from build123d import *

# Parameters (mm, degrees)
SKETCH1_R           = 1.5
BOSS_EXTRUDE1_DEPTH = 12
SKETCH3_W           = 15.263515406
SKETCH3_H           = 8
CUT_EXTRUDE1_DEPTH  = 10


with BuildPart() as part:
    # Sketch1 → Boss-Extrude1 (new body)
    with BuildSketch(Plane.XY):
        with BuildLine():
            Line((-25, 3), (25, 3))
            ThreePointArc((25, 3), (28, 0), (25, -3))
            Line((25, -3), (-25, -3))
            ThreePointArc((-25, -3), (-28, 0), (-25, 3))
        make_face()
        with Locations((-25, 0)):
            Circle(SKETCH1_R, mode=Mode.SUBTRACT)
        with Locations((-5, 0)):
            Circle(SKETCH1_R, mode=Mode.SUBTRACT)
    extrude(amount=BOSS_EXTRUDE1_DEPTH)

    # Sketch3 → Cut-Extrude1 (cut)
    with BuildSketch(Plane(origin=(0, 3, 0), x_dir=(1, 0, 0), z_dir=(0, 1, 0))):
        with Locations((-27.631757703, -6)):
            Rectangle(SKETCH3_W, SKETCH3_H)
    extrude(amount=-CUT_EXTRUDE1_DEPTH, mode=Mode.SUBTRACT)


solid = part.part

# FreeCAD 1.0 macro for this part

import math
import FreeCAD as App
import Part
import Sketcher

doc = App.newDocument("Part")
body = doc.addObject("PartDesign::Body", "Body")

sketch1 = body.newObject("Sketcher::SketchObject", "Sketch")
sketch1.AttachmentSupport = (doc.getObject("XY_Plane"), [""])
sketch1.MapMode = "FlatFace"
sketch1.addGeometry([
    Part.LineSegment(App.Vector(25, 3, 0), App.Vector(-25, 3, 0)),
    Part.ArcOfCircle(Part.Circle(App.Vector(-25, 0, 0), App.Vector(0, 0, 1), 3), math.radians(90), math.radians(270)),
    Part.LineSegment(App.Vector(-25, -3, 0), App.Vector(25, -3, 0)),
    Part.ArcOfCircle(Part.Circle(App.Vector(25, 0, 0), App.Vector(0, 0, 1), 3), math.radians(-90), math.radians(90)),
    Part.Circle(App.Vector(-5, 0, 0), App.Vector(0, 0, 1), 1.5),
    Part.Circle(App.Vector(-25, 0, 0), App.Vector(0, 0, 1), 1.5),
], False)
sketch1.addConstraint([
    Sketcher.Constraint("Tangent", 0, 2, 1, 1),
    Sketcher.Constraint("Tangent", 1, 2, 2, 1),
    Sketcher.Constraint("Tangent", 2, 2, 3, 1),
    Sketcher.Constraint("Tangent", 3, 2, 0, 1),
    Sketcher.Constraint("Horizontal", 0),
    Sketcher.Constraint("Horizontal", 2),
    Sketcher.Constraint("Coincident", 5, 3, 1, 3),
    Sketcher.Constraint("Equal", 4, 5),
    Sketcher.Constraint("Symmetric", 1, 3, 3, 3, -1, 1),
    Sketcher.Constraint("PointOnObject", 4, 3, -1),
    Sketcher.Constraint("Diameter", 4, 3.0),
    Sketcher.Constraint("Radius", 1, 3.0),
    Sketcher.Constraint("DistanceX", 0, 2, 0, 1, 50.0),
    Sketcher.Constraint("DistanceX", 4, 3, -1, 1, 5.0),
])
pad1 = body.newObject("PartDesign::Pad", "Pad")
pad1.Profile = sketch1
pad1.Length = 12

sketch2 = body.newObject("Sketcher::SketchObject", "Sketch001")
sketch2.AttachmentSupport = (doc.getObject("XZ_Plane"), [""])
sketch2.MapMode = "FlatFace"
sketch2.AttachmentOffset = App.Placement(App.Vector(0, 0, -3), App.Rotation())
sketch2.addGeometry([
    Part.LineSegment(App.Vector(-35.263515, 2, 0), App.Vector(-35.263515, 10, 0)),
    Part.LineSegment(App.Vector(-35.263515, 10, 0), App.Vector(-20, 10, 0)),
    Part.LineSegment(App.Vector(-20, 10, 0), App.Vector(-20, 2, 0)),
    Part.LineSegment(App.Vector(-20, 2, 0), App.Vector(-35.263515, 2, 0)),
], False)
sketch2.addConstraint([
    Sketcher.Constraint("Coincident", 0, 2, 1, 1),
    Sketcher.Constraint("Coincident", 1, 2, 2, 1),
    Sketcher.Constraint("Coincident", 2, 2, 3, 1),
    Sketcher.Constraint("Coincident", 3, 2, 0, 1),
    Sketcher.Constraint("Vertical", 0),
    Sketcher.Constraint("Horizontal", 1),
    Sketcher.Constraint("Vertical", 2),
    Sketcher.Constraint("Horizontal", 3),
    Sketcher.Constraint("DistanceY", 0, 1, 0, 2, 8.0),
    Sketcher.Constraint("DistanceY", -1, 1, 0, 2, 10.0),
    Sketcher.Constraint("DistanceX", 1, 2, -1, 1, 20.0),
    Sketcher.Constraint("DistanceX", 1, 1, 1, 2, 15.263515),
])
pocket1 = body.newObject("PartDesign::Pocket", "Pocket")
pocket1.Profile = sketch2
pocket1.Length = 10
pocket1.Reversed = True

doc.recompute()
